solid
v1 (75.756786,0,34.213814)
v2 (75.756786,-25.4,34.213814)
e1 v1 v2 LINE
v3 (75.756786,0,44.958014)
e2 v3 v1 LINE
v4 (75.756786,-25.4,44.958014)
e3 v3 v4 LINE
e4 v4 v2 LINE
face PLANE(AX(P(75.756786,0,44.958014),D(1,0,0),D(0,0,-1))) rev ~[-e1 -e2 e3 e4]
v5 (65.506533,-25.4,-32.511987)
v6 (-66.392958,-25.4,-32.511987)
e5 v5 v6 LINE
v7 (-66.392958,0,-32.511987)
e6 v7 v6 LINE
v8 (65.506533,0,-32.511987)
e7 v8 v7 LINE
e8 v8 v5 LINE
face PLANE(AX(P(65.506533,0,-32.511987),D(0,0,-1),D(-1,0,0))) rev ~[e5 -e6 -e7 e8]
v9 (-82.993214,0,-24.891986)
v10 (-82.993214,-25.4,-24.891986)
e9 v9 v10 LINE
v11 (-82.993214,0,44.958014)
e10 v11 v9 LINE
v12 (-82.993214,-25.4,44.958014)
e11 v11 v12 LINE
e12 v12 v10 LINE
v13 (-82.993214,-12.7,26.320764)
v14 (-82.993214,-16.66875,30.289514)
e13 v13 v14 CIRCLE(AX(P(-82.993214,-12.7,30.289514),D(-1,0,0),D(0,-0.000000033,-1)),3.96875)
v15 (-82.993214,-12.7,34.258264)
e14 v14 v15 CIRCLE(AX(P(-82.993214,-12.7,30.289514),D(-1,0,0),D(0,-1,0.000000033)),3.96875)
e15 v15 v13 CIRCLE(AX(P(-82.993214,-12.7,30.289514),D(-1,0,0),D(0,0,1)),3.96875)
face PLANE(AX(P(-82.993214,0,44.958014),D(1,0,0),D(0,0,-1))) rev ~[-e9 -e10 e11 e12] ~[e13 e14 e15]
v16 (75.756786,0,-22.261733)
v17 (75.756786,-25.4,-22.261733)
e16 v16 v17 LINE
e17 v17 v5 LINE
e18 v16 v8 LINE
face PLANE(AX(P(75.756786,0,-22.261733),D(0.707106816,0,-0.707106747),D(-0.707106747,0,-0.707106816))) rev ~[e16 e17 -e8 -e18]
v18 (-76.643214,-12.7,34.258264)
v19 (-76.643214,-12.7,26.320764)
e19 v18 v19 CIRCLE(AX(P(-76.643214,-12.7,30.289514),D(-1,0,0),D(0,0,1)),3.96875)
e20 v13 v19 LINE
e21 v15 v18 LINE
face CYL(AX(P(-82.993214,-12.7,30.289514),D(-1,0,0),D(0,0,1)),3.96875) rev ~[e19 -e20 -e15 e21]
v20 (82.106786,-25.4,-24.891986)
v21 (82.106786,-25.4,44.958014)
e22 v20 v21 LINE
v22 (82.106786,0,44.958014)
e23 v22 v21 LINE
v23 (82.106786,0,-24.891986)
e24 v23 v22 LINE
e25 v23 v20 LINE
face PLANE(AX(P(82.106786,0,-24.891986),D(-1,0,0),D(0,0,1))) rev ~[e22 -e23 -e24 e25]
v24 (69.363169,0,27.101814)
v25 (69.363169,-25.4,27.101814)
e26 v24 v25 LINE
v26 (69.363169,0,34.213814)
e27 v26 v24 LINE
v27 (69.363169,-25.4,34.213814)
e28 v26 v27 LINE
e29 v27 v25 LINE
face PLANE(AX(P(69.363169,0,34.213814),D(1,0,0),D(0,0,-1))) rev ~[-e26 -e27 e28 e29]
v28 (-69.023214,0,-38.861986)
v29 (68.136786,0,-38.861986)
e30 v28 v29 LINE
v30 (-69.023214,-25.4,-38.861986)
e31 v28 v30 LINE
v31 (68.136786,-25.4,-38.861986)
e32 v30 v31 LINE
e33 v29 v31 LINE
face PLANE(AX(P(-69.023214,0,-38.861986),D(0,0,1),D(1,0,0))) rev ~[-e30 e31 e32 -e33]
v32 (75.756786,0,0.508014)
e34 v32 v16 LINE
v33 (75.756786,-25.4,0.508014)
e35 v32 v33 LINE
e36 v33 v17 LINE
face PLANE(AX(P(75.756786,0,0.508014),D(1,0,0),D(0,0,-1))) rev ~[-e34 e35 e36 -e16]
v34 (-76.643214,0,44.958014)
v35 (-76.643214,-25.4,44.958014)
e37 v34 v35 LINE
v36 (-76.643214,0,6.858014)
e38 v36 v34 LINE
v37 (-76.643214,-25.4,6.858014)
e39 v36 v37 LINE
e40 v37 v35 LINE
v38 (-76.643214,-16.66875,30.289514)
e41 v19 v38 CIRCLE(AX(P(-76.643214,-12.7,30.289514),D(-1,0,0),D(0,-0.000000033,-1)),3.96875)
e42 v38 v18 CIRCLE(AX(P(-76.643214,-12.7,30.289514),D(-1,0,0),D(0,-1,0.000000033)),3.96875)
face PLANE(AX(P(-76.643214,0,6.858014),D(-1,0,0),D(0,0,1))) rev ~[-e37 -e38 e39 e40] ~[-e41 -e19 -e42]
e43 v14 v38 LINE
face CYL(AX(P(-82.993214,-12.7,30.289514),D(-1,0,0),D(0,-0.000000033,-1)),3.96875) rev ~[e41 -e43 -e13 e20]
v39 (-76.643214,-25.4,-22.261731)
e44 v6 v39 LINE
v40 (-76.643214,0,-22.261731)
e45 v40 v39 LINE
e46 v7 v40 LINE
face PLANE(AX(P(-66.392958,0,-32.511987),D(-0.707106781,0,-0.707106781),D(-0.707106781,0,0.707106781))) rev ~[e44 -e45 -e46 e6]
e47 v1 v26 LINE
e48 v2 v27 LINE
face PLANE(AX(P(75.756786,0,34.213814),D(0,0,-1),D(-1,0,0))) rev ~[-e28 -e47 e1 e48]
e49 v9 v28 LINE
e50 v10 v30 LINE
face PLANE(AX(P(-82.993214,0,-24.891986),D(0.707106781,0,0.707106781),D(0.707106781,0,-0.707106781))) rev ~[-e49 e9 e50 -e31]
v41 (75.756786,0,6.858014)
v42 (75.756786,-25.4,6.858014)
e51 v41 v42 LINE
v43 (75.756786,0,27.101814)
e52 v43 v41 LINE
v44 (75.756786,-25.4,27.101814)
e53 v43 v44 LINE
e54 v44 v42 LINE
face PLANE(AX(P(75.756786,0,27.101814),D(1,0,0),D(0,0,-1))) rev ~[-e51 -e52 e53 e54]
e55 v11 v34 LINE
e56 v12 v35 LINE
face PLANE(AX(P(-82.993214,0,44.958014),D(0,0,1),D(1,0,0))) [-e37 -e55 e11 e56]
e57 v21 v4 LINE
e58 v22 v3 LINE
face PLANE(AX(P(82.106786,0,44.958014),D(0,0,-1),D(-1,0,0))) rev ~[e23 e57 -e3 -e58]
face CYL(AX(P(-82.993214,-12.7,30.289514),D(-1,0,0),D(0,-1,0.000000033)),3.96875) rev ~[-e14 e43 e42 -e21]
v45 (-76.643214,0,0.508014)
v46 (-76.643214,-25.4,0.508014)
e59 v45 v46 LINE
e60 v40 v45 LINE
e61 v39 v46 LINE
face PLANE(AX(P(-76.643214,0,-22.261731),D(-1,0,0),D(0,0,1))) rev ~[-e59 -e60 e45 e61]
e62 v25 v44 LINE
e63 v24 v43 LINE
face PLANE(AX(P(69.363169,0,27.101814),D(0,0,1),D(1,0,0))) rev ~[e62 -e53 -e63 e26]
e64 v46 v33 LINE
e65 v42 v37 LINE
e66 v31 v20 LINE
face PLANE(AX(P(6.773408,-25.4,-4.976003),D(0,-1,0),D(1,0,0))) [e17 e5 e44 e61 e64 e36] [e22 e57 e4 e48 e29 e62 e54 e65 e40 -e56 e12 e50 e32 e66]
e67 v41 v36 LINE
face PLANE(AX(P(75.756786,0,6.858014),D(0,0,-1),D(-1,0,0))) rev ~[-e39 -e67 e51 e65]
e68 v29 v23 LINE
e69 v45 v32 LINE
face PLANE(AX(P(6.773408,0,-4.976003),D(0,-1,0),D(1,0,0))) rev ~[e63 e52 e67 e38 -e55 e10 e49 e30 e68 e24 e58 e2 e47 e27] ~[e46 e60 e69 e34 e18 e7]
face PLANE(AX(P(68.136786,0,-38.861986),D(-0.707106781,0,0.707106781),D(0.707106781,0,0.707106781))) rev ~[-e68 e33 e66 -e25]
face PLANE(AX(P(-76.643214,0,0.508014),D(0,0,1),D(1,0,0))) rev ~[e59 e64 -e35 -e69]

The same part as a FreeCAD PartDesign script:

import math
import FreeCAD as App
import Part
import Sketcher

V = App.Vector
Q = App.Units.Quantity

doc = App.newDocument("Part")
body = doc.addObject("PartDesign::Body", "Body")

# Sketch on XZ plane
sketch1 = doc.addObject("Sketcher::SketchObject", "Sketch")
body.addObject(sketch1)
sketch1.AttachmentSupport = (doc.XZ_Plane, [""])
sketch1.MapMode = "FlatFace"
sketch1.addGeometry(Part.LineSegment(V(-83, -25, 0), V(-69, -39, 0)), False)
sketch1.addGeometry(Part.LineSegment(V(-69, -39, 0), V(68, -39, 0)), False)
sketch1.addGeometry(Part.LineSegment(V(68, -39, 0), V(82, -25, 0)), False)
sketch1.addGeometry(Part.LineSegment(V(82, -25, 0), V(82, 45, 0)), False)
sketch1.addGeometry(Part.LineSegment(V(82, 45, 0), V(76, 45, 0)), False)
sketch1.addGeometry(Part.LineSegment(V(76, 45, 0), V(76, 34, 0)), False)
sketch1.addGeometry(Part.LineSegment(V(76, 34, 0), V(69, 34, 0)), False)
sketch1.addGeometry(Part.LineSegment(V(69, 34, 0), V(69, 27, 0)), False)
sketch1.addGeometry(Part.LineSegment(V(69, 27, 0), V(76, 27, 0)), False)
sketch1.addGeometry(Part.LineSegment(V(76, 27, 0), V(76, 7, 0)), False)
sketch1.addGeometry(Part.LineSegment(V(76, 7, 0), V(-77, 7, 0)), False)
sketch1.addGeometry(Part.LineSegment(V(-77, 7, 0), V(-77, 45, 0)), False)
sketch1.addGeometry(Part.LineSegment(V(-77, 45, 0), V(-83, 45, 0)), False)
sketch1.addGeometry(Part.LineSegment(V(-83, 45, 0), V(-83, -25, 0)), False)
sketch1.addGeometry(Part.LineSegment(V(66, -33, 0), V(-66, -33, 0)), False)
sketch1.addGeometry(Part.LineSegment(V(-66, -33, 0), V(-77, -22, 0)), False)
sketch1.addGeometry(Part.LineSegment(V(-77, -22, 0), V(-77, 1, 0)), False)
sketch1.addGeometry(Part.LineSegment(V(-77, 1, 0), V(76, 1, 0)), False)
sketch1.addGeometry(Part.LineSegment(V(76, 1, 0), V(76, -22, 0)), False)
sketch1.addGeometry(Part.LineSegment(V(76, -22, 0), V(66, -33, 0)), False)
sketch1.addConstraint(Sketcher.Constraint("Coincident", 0, 2, 1, 1))
sketch1.addConstraint(Sketcher.Constraint("Coincident", 1, 2, 2, 1))
sketch1.addConstraint(Sketcher.Constraint("Coincident", 2, 2, 3, 1))
sketch1.addConstraint(Sketcher.Constraint("Coincident", 3, 2, 4, 1))
sketch1.addConstraint(Sketcher.Constraint("Coincident", 4, 2, 5, 1))
sketch1.addConstraint(Sketcher.Constraint("Coincident", 5, 2, 6, 1))
sketch1.addConstraint(Sketcher.Constraint("Coincident", 6, 2, 7, 1))
sketch1.addConstraint(Sketcher.Constraint("Coincident", 7, 2, 8, 1))
sketch1.addConstraint(Sketcher.Constraint("Coincident", 8, 2, 9, 1))
sketch1.addConstraint(Sketcher.Constraint("Coincident", 9, 2, 10, 1))
sketch1.addConstraint(Sketcher.Constraint("Coincident", 10, 2, 11, 1))
sketch1.addConstraint(Sketcher.Constraint("Coincident", 11, 2, 12, 1))
sketch1.addConstraint(Sketcher.Constraint("Coincident", 12, 2, 13, 1))
sketch1.addConstraint(Sketcher.Constraint("Coincident", 13, 2, 0, 1))
sketch1.addConstraint(Sketcher.Constraint("Coincident", 14, 2, 15, 1))
sketch1.addConstraint(Sketcher.Constraint("Coincident", 15, 2, 16, 1))
sketch1.addConstraint(Sketcher.Constraint("Coincident", 16, 2, 17, 1))
sketch1.addConstraint(Sketcher.Constraint("Coincident", 17, 2, 18, 1))
sketch1.addConstraint(Sketcher.Constraint("Coincident", 18, 2, 19, 1))
sketch1.addConstraint(Sketcher.Constraint("Coincident", 19, 2, 14, 1))
sketch1.addConstraint(Sketcher.Constraint("Horizontal", 1))
sketch1.addConstraint(Sketcher.Constraint("Vertical", 3))
sketch1.addConstraint(Sketcher.Constraint("Horizontal", 4))
sketch1.addConstraint(Sketcher.Constraint("Vertical", 5))
sketch1.addConstraint(Sketcher.Constraint("Horizontal", 6))
sketch1.addConstraint(Sketcher.Constraint("Vertical", 7))
sketch1.addConstraint(Sketcher.Constraint("Horizontal", 8))
sketch1.addConstraint(Sketcher.Constraint("Vertical", 9))
sketch1.addConstraint(Sketcher.Constraint("Horizontal", 10))
sketch1.addConstraint(Sketcher.Constraint("Vertical", 11))
sketch1.addConstraint(Sketcher.Constraint("Horizontal", 12))
sketch1.addConstraint(Sketcher.Constraint("Vertical", 13))
sketch1.addConstraint(Sketcher.Constraint("Horizontal", 14))
sketch1.addConstraint(Sketcher.Constraint("Vertical", 16))
sketch1.addConstraint(Sketcher.Constraint("Horizontal", 17))
sketch1.addConstraint(Sketcher.Constraint("Vertical", 18))
sketch1.addConstraint(Sketcher.Constraint("Perpendicular", 0, 2))
sketch1.addConstraint(Sketcher.Constraint("Perpendicular", 2, 15))
sketch1.addConstraint(Sketcher.Constraint("Perpendicular", 15, 19))
sketch1.addConstraint(Sketcher.Constraint("Horizontal", 4, 2, 11, 2))
sketch1.addConstraint(Sketcher.Constraint("Horizontal", 2, 2, 13, 2))
sketch1.addConstraint(Sketcher.Constraint("Horizontal", 15, 2, 18, 2))
sketch1.addConstraint(Sketcher.Constraint("Vertical", 5, 2, 8, 2))
sketch1.addConstraint(Sketcher.Constraint("Vertical", 11, 2, 15, 2))
sketch1.addConstraint(Sketcher.Constraint("Vertical", 9, 2, 17, 2))
sketch1.addConstraint(Sketcher.Constraint("Equal", 4, 12))
sketch1.addConstraint(Sketcher.Constraint("Equal", 0, 2))
sketch1.addConstraint(Sketcher.Constraint("DistanceX", 10, 2, 10, 1, Q("6 in")))
sketch1.addConstraint(Sketcher.Constraint("DistanceX", 1, 1, 1, 2, Q("5.4 in")))
sketch1.addConstraint(Sketcher.Constraint("DistanceY", 11, 1, 11, 2, Q("1.5 in")))
sketch1.addConstraint(Sketcher.Constraint("DistanceY", 13, 2, 16, 2, Q("1 in")))
sketch1.addConstraint(Sketcher.Constraint("DistanceX", 4, 2, 4, 1, Q("0.25 in")))
sketch1.addConstraint(Sketcher.Constraint("DistanceY", 3, 1, 3, 2, Q("2.75 in")))
sketch1.addConstraint(Sketcher.Constraint("DistanceY", 7, 2, 7, 1, Q("0.28 in")))
sketch1.addConstraint(Sketcher.Constraint("DistanceY", 14, 2, 13, 2, Q("0.3 in")))
sketch1.addConstraint(Sketcher.Constraint("DistanceY", 5, 2, 5, 1, Q("0.423 in")))
sketch1.addConstraint(Sketcher.Constraint("DistanceX", 14, 2, 14, 1, Q("131.899491 mm")))
sketch1.addConstraint(Sketcher.Constraint("DistanceX", 6, 2, 6, 1, Q("6.393617 mm")))
sketch1.addConstraint(Sketcher.Constraint("DistanceX", -1, 1, 6, 2, Q("69.363169 mm")))
sketch1.addConstraint(Sketcher.Constraint("DistanceY", 15, 2, -1, 1, Q("22.261731 mm")))
pad1 = doc.addObject("PartDesign::Pad", "Pad")
body.addObject(pad1)
pad1.Profile = sketch1
pad1.Length = Q("1 in")

# Sketch on YZ plane
sketch2 = doc.addObject("Sketcher::SketchObject", "Sketch001")
body.addObject(sketch2)
sketch2.AttachmentSupport = (doc.YZ_Plane, [""])
sketch2.MapMode = "FlatFace"
sketch2.AttachmentOffset = App.Placement(V(0, 0, -82.993214), App.Rotation())
sketch2.addGeometry(Part.ArcOfCircle(Part.Circle(V(-12.7, 30.3, 0), V(0, 0, 1), 4), math.radians(-90), math.radians(90)), False)
sketch2.addGeometry(Part.ArcOfCircle(Part.Circle(V(-12.7, 30.3, 0), V(0, 0, 1), 4), math.radians(-180), math.radians(-90)), False)
sketch2.addGeometry(Part.ArcOfCircle(Part.Circle(V(-12.7, 30.3, 0), V(0, 0, 1), 4), math.radians(90), math.radians(180)), False)
sketch2.addConstraint(Sketcher.Constraint("Tangent", 0, 1, 1, 2))
sketch2.addConstraint(Sketcher.Constraint("Tangent", 1, 1, 2, 2))
sketch2.addConstraint(Sketcher.Constraint("Tangent", 2, 1, 0, 2))
sketch2.addConstraint(Sketcher.Constraint("Horizontal", 2, 3, 1, 1))
sketch2.addConstraint(Sketcher.Constraint("Vertical", 2, 3, 0, 1))
sketch2.addConstraint(Sketcher.Constraint("Vertical", 0, 1, 2, 1))
sketch2.addConstraint(Sketcher.Constraint("Radius", 0, Q("0.15625 in")))
sketch2.addConstraint(Sketcher.Constraint("DistanceX", 0, 3, -1, 1, Q("0.5 in")))
sketch2.addConstraint(Sketcher.Constraint("DistanceY", -1, 1, 0, 3, Q("30.289514 mm")))
pocket1 = doc.addObject("PartDesign::Pocket", "Pocket")
body.addObject(pocket1)
pocket1.Profile = sketch2
pocket1.Length = Q("1 in")
pocket1.Reversed = True

doc.recompute()
